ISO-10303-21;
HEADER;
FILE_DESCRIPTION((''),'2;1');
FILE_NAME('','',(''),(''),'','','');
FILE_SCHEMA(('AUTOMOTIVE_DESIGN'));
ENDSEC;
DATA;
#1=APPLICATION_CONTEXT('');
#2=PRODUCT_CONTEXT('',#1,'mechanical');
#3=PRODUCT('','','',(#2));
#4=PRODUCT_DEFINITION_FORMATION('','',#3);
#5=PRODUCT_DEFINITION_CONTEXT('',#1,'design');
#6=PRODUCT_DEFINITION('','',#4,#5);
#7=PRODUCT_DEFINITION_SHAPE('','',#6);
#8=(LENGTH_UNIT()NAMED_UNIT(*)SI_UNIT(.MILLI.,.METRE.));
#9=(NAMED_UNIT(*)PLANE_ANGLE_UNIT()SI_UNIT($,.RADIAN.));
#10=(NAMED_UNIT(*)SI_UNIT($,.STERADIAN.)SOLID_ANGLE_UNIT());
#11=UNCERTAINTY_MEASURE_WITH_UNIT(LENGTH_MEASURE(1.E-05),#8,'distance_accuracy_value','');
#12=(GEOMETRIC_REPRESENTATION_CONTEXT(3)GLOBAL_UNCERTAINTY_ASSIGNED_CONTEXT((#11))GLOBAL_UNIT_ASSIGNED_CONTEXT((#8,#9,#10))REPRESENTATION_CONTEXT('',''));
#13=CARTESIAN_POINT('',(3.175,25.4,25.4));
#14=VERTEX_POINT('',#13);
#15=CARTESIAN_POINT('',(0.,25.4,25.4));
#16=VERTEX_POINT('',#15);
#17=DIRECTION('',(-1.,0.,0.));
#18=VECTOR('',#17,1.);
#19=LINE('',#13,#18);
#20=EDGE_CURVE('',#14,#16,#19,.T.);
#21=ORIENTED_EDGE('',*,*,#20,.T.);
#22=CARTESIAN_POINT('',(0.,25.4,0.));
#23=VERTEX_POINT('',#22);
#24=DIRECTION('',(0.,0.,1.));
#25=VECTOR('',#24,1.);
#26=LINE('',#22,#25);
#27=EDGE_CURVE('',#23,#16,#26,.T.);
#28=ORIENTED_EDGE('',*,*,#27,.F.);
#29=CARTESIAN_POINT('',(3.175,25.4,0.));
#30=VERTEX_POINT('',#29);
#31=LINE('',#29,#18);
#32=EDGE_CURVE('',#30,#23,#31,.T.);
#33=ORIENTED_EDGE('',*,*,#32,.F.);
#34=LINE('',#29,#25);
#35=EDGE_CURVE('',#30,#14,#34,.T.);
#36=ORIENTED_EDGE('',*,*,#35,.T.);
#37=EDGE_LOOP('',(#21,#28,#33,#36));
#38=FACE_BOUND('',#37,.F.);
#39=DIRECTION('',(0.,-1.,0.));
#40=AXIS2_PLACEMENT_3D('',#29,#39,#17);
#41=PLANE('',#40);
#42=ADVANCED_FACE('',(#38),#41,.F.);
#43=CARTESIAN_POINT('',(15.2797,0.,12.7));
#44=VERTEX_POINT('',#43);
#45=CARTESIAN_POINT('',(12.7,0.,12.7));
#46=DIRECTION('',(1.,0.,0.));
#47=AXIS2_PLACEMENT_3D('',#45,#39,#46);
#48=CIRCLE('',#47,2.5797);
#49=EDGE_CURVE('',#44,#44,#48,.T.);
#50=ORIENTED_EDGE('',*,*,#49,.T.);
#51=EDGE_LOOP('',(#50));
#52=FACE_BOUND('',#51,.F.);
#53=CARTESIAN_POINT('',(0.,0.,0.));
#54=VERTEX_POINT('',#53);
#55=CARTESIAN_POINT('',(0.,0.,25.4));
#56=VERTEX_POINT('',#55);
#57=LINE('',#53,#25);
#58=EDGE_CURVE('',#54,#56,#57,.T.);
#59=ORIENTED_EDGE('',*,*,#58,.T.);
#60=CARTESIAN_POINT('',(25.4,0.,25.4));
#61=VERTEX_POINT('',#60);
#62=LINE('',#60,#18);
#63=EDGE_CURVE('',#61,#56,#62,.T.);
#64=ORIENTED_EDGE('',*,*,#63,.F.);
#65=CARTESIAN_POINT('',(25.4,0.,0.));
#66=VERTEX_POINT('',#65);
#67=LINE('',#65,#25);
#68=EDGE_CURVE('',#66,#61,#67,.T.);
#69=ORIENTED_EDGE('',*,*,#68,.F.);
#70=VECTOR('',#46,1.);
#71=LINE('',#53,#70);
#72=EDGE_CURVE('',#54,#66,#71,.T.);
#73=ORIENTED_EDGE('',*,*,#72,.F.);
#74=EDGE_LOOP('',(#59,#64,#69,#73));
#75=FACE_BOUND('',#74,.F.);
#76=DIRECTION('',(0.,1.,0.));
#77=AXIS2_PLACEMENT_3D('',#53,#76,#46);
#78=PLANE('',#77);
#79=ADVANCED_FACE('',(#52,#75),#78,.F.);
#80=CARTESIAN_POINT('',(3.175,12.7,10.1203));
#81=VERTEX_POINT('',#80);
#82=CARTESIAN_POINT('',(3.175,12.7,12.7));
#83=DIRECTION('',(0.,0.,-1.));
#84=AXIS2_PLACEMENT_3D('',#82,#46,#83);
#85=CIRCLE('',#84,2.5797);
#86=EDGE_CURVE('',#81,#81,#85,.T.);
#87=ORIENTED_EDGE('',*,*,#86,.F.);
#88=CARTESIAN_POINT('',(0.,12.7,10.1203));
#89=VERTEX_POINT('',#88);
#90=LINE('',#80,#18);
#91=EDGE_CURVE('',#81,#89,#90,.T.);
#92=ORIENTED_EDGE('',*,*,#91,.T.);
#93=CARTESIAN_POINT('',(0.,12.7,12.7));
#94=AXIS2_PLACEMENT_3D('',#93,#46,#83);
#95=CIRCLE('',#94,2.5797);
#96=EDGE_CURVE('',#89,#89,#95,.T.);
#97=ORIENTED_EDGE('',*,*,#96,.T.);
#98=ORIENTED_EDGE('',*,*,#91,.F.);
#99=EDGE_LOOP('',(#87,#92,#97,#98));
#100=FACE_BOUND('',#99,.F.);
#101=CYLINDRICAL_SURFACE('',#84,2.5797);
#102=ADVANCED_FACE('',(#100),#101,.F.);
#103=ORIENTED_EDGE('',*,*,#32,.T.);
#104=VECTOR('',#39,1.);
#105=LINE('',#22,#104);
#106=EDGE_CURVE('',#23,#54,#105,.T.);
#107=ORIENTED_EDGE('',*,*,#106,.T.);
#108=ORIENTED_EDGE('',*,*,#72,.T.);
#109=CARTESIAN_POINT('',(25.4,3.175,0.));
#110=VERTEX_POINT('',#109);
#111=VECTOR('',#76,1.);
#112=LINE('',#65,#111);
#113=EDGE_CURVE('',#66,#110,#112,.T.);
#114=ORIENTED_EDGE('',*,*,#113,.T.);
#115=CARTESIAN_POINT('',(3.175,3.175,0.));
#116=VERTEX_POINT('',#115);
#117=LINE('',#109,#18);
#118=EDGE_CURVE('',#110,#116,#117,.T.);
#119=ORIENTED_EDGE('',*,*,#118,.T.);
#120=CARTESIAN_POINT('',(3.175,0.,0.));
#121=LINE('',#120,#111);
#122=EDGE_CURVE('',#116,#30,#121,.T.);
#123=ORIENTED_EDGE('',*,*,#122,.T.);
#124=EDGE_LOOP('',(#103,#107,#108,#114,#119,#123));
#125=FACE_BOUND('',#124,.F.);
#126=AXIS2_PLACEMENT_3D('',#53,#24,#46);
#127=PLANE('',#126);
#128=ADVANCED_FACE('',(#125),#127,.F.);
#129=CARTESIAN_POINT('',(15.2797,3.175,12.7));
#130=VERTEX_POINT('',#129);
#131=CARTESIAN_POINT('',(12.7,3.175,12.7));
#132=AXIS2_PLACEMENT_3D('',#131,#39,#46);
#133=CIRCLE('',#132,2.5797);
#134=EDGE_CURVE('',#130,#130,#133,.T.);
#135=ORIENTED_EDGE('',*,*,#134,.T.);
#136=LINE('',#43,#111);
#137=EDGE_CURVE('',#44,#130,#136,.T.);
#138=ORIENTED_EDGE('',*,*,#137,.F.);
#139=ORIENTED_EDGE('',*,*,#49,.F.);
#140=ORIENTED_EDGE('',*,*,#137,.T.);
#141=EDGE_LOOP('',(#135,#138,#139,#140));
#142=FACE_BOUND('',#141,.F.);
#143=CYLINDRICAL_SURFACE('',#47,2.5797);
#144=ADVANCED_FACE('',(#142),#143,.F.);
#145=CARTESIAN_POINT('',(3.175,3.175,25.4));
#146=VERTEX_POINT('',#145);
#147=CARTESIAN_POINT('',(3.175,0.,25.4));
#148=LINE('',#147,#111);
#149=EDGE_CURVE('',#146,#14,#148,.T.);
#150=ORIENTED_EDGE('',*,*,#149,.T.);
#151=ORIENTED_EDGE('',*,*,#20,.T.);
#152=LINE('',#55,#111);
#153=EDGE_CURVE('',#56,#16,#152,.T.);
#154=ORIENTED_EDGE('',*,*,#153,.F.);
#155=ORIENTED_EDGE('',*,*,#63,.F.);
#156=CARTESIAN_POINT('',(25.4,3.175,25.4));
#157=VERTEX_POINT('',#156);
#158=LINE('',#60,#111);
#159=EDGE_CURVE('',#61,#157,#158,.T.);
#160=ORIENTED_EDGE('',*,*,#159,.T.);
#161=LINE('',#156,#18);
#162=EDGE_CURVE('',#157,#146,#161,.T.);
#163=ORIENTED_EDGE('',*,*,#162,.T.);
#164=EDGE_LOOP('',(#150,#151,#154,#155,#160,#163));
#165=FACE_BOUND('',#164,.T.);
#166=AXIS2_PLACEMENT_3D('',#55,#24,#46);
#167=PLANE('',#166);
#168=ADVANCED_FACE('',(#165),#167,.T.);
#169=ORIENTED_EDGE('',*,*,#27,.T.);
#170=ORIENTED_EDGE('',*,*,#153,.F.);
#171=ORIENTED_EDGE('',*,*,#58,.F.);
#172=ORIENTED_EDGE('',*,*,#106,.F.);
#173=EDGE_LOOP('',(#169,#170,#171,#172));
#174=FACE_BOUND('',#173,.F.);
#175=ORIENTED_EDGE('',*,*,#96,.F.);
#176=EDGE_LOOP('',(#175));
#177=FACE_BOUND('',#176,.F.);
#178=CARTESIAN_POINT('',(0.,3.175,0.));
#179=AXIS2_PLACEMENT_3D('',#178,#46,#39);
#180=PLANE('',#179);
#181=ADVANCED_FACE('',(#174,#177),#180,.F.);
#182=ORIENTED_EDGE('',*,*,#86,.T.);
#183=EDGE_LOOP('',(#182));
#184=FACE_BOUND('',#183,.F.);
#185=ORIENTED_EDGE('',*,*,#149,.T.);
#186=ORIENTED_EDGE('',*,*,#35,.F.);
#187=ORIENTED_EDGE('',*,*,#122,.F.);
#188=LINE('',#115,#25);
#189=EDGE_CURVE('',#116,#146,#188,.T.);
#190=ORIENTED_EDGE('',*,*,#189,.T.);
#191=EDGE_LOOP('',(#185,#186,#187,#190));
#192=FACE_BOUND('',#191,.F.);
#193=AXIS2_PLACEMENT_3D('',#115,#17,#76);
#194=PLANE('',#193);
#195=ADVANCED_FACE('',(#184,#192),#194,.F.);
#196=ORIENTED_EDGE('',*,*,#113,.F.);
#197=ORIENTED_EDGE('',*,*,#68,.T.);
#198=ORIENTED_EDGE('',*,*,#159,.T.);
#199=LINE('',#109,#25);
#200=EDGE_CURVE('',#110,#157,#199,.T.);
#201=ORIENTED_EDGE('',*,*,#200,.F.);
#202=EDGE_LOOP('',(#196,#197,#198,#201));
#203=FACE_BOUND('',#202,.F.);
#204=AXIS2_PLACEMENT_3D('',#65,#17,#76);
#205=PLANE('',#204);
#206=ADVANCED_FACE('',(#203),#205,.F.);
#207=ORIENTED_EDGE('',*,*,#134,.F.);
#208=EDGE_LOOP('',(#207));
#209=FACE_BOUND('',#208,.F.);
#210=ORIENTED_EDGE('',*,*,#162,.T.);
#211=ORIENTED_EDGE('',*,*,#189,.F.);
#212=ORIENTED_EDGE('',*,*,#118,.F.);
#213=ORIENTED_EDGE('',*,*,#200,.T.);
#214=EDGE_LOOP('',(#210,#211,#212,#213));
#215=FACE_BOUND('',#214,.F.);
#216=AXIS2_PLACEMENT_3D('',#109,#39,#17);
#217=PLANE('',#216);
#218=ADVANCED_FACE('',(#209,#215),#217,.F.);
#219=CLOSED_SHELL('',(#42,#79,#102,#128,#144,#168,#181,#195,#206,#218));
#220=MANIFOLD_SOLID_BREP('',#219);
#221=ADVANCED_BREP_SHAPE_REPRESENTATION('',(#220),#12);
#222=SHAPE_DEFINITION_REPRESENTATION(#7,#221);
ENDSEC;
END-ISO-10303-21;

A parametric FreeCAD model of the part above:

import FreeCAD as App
import Part
import Sketcher

V = App.Vector
Q = App.Units.Quantity

doc = App.newDocument("Part")
body = doc.addObject("PartDesign::Body", "Body")

# Sketch on XY plane
sketch1 = body.newObject("Sketcher::SketchObject", "Sketch")
sketch1.AttachmentSupport = (doc.getObject("XY_Plane"), [""])
sketch1.MapMode = "FlatFace"
sketch1.addGeometry([
    Part.LineSegment(V(0, 0, 0), V(25.4, 0, 0)),  # 0
    Part.LineSegment(V(25.4, 0, 0), V(25.4, 3.175, 0)),  # 1
    Part.LineSegment(V(25.4, 3.175, 0), V(3.175, 3.175, 0)),  # 2
    Part.LineSegment(V(3.175, 3.175, 0), V(3.175, 25.4, 0)),  # 3
    Part.LineSegment(V(3.175, 25.4, 0), V(0, 25.4, 0)),  # 4
    Part.LineSegment(V(0, 25.4, 0), V(0, 0, 0)),  # 5
], False)
sketch1.addConstraint([
    Sketcher.Constraint("Coincident", 0, 2, 1, 1),
    Sketcher.Constraint("Coincident", 1, 2, 2, 1),
    Sketcher.Constraint("Coincident", 2, 2, 3, 1),
    Sketcher.Constraint("Coincident", 3, 2, 4, 1),
    Sketcher.Constraint("Coincident", 4, 2, 5, 1),
    Sketcher.Constraint("Coincident", 5, 2, 0, 1),
    Sketcher.Constraint("Horizontal", 0),
    Sketcher.Constraint("Vertical", 1),
    Sketcher.Constraint("Horizontal", 2),
    Sketcher.Constraint("Vertical", 3),
    Sketcher.Constraint("Horizontal", 4),
    Sketcher.Constraint("Vertical", 5),
    Sketcher.Constraint("Coincident", 5, 2, -1, 1),
    Sketcher.Constraint("Equal", 4, 1),
    Sketcher.Constraint("Equal", 2, 3),
    Sketcher.Constraint("DistanceX", 0, 1, 0, 2, Q("1 in")),
    Sketcher.Constraint("DistanceX", 4, 2, 4, 1, Q("0.125 in")),
])
pad1 = body.newObject("PartDesign::Pad", "Pad")
pad1.Profile = sketch1
pad1.Length = Q("1 in")

# Sketch on YZ plane
sketch2 = body.newObject("Sketcher::SketchObject", "Sketch001")
sketch2.AttachmentSupport = (doc.getObject("YZ_Plane"), [""])
sketch2.MapMode = "FlatFace"
sketch2.AttachmentOffset = App.Placement(V(0, 0, 0.125 * 25.4), App.Rotation())
sketch2.addGeometry(Part.Circle(V(12.7, 12.7, 0), V(0, 0, 1), 2.5797), False)
sketch2.addConstraint([
    Sketcher.Constraint("Diameter", 0, Q("0.203126 in")),
    Sketcher.Constraint("DistanceX", -1, 1, 0, 3, Q("0.5 in")),
    Sketcher.Constraint("DistanceY", -1, 1, 0, 3, Q("0.5 in")),
])
pocket1 = body.newObject("PartDesign::Pocket", "Pocket")
pocket1.Profile = sketch2
pocket1.Length = Q("1 in")

# Sketch on XZ plane
sketch3 = body.newObject("Sketcher::SketchObject", "Sketch002")
sketch3.AttachmentSupport = (doc.getObject("XZ_Plane"), [""])
sketch3.MapMode = "FlatFace"
sketch3.addGeometry(Part.Circle(V(12.7, 12.7, 0), V(0, 0, 1), 2.5797), False)
sketch3.addConstraint([
    Sketcher.Constraint("Diameter", 0, Q("0.203126 in")),
    Sketcher.Constraint("DistanceX", -1, 1, 0, 3, Q("0.5 in")),
    Sketcher.Constraint("DistanceY", -1, 1, 0, 3, Q("0.5 in")),
])
pocket2 = body.newObject("PartDesign::Pocket", "Pocket001")
pocket2.Profile = sketch3
pocket2.Length = Q("1 in")

doc.recompute()
